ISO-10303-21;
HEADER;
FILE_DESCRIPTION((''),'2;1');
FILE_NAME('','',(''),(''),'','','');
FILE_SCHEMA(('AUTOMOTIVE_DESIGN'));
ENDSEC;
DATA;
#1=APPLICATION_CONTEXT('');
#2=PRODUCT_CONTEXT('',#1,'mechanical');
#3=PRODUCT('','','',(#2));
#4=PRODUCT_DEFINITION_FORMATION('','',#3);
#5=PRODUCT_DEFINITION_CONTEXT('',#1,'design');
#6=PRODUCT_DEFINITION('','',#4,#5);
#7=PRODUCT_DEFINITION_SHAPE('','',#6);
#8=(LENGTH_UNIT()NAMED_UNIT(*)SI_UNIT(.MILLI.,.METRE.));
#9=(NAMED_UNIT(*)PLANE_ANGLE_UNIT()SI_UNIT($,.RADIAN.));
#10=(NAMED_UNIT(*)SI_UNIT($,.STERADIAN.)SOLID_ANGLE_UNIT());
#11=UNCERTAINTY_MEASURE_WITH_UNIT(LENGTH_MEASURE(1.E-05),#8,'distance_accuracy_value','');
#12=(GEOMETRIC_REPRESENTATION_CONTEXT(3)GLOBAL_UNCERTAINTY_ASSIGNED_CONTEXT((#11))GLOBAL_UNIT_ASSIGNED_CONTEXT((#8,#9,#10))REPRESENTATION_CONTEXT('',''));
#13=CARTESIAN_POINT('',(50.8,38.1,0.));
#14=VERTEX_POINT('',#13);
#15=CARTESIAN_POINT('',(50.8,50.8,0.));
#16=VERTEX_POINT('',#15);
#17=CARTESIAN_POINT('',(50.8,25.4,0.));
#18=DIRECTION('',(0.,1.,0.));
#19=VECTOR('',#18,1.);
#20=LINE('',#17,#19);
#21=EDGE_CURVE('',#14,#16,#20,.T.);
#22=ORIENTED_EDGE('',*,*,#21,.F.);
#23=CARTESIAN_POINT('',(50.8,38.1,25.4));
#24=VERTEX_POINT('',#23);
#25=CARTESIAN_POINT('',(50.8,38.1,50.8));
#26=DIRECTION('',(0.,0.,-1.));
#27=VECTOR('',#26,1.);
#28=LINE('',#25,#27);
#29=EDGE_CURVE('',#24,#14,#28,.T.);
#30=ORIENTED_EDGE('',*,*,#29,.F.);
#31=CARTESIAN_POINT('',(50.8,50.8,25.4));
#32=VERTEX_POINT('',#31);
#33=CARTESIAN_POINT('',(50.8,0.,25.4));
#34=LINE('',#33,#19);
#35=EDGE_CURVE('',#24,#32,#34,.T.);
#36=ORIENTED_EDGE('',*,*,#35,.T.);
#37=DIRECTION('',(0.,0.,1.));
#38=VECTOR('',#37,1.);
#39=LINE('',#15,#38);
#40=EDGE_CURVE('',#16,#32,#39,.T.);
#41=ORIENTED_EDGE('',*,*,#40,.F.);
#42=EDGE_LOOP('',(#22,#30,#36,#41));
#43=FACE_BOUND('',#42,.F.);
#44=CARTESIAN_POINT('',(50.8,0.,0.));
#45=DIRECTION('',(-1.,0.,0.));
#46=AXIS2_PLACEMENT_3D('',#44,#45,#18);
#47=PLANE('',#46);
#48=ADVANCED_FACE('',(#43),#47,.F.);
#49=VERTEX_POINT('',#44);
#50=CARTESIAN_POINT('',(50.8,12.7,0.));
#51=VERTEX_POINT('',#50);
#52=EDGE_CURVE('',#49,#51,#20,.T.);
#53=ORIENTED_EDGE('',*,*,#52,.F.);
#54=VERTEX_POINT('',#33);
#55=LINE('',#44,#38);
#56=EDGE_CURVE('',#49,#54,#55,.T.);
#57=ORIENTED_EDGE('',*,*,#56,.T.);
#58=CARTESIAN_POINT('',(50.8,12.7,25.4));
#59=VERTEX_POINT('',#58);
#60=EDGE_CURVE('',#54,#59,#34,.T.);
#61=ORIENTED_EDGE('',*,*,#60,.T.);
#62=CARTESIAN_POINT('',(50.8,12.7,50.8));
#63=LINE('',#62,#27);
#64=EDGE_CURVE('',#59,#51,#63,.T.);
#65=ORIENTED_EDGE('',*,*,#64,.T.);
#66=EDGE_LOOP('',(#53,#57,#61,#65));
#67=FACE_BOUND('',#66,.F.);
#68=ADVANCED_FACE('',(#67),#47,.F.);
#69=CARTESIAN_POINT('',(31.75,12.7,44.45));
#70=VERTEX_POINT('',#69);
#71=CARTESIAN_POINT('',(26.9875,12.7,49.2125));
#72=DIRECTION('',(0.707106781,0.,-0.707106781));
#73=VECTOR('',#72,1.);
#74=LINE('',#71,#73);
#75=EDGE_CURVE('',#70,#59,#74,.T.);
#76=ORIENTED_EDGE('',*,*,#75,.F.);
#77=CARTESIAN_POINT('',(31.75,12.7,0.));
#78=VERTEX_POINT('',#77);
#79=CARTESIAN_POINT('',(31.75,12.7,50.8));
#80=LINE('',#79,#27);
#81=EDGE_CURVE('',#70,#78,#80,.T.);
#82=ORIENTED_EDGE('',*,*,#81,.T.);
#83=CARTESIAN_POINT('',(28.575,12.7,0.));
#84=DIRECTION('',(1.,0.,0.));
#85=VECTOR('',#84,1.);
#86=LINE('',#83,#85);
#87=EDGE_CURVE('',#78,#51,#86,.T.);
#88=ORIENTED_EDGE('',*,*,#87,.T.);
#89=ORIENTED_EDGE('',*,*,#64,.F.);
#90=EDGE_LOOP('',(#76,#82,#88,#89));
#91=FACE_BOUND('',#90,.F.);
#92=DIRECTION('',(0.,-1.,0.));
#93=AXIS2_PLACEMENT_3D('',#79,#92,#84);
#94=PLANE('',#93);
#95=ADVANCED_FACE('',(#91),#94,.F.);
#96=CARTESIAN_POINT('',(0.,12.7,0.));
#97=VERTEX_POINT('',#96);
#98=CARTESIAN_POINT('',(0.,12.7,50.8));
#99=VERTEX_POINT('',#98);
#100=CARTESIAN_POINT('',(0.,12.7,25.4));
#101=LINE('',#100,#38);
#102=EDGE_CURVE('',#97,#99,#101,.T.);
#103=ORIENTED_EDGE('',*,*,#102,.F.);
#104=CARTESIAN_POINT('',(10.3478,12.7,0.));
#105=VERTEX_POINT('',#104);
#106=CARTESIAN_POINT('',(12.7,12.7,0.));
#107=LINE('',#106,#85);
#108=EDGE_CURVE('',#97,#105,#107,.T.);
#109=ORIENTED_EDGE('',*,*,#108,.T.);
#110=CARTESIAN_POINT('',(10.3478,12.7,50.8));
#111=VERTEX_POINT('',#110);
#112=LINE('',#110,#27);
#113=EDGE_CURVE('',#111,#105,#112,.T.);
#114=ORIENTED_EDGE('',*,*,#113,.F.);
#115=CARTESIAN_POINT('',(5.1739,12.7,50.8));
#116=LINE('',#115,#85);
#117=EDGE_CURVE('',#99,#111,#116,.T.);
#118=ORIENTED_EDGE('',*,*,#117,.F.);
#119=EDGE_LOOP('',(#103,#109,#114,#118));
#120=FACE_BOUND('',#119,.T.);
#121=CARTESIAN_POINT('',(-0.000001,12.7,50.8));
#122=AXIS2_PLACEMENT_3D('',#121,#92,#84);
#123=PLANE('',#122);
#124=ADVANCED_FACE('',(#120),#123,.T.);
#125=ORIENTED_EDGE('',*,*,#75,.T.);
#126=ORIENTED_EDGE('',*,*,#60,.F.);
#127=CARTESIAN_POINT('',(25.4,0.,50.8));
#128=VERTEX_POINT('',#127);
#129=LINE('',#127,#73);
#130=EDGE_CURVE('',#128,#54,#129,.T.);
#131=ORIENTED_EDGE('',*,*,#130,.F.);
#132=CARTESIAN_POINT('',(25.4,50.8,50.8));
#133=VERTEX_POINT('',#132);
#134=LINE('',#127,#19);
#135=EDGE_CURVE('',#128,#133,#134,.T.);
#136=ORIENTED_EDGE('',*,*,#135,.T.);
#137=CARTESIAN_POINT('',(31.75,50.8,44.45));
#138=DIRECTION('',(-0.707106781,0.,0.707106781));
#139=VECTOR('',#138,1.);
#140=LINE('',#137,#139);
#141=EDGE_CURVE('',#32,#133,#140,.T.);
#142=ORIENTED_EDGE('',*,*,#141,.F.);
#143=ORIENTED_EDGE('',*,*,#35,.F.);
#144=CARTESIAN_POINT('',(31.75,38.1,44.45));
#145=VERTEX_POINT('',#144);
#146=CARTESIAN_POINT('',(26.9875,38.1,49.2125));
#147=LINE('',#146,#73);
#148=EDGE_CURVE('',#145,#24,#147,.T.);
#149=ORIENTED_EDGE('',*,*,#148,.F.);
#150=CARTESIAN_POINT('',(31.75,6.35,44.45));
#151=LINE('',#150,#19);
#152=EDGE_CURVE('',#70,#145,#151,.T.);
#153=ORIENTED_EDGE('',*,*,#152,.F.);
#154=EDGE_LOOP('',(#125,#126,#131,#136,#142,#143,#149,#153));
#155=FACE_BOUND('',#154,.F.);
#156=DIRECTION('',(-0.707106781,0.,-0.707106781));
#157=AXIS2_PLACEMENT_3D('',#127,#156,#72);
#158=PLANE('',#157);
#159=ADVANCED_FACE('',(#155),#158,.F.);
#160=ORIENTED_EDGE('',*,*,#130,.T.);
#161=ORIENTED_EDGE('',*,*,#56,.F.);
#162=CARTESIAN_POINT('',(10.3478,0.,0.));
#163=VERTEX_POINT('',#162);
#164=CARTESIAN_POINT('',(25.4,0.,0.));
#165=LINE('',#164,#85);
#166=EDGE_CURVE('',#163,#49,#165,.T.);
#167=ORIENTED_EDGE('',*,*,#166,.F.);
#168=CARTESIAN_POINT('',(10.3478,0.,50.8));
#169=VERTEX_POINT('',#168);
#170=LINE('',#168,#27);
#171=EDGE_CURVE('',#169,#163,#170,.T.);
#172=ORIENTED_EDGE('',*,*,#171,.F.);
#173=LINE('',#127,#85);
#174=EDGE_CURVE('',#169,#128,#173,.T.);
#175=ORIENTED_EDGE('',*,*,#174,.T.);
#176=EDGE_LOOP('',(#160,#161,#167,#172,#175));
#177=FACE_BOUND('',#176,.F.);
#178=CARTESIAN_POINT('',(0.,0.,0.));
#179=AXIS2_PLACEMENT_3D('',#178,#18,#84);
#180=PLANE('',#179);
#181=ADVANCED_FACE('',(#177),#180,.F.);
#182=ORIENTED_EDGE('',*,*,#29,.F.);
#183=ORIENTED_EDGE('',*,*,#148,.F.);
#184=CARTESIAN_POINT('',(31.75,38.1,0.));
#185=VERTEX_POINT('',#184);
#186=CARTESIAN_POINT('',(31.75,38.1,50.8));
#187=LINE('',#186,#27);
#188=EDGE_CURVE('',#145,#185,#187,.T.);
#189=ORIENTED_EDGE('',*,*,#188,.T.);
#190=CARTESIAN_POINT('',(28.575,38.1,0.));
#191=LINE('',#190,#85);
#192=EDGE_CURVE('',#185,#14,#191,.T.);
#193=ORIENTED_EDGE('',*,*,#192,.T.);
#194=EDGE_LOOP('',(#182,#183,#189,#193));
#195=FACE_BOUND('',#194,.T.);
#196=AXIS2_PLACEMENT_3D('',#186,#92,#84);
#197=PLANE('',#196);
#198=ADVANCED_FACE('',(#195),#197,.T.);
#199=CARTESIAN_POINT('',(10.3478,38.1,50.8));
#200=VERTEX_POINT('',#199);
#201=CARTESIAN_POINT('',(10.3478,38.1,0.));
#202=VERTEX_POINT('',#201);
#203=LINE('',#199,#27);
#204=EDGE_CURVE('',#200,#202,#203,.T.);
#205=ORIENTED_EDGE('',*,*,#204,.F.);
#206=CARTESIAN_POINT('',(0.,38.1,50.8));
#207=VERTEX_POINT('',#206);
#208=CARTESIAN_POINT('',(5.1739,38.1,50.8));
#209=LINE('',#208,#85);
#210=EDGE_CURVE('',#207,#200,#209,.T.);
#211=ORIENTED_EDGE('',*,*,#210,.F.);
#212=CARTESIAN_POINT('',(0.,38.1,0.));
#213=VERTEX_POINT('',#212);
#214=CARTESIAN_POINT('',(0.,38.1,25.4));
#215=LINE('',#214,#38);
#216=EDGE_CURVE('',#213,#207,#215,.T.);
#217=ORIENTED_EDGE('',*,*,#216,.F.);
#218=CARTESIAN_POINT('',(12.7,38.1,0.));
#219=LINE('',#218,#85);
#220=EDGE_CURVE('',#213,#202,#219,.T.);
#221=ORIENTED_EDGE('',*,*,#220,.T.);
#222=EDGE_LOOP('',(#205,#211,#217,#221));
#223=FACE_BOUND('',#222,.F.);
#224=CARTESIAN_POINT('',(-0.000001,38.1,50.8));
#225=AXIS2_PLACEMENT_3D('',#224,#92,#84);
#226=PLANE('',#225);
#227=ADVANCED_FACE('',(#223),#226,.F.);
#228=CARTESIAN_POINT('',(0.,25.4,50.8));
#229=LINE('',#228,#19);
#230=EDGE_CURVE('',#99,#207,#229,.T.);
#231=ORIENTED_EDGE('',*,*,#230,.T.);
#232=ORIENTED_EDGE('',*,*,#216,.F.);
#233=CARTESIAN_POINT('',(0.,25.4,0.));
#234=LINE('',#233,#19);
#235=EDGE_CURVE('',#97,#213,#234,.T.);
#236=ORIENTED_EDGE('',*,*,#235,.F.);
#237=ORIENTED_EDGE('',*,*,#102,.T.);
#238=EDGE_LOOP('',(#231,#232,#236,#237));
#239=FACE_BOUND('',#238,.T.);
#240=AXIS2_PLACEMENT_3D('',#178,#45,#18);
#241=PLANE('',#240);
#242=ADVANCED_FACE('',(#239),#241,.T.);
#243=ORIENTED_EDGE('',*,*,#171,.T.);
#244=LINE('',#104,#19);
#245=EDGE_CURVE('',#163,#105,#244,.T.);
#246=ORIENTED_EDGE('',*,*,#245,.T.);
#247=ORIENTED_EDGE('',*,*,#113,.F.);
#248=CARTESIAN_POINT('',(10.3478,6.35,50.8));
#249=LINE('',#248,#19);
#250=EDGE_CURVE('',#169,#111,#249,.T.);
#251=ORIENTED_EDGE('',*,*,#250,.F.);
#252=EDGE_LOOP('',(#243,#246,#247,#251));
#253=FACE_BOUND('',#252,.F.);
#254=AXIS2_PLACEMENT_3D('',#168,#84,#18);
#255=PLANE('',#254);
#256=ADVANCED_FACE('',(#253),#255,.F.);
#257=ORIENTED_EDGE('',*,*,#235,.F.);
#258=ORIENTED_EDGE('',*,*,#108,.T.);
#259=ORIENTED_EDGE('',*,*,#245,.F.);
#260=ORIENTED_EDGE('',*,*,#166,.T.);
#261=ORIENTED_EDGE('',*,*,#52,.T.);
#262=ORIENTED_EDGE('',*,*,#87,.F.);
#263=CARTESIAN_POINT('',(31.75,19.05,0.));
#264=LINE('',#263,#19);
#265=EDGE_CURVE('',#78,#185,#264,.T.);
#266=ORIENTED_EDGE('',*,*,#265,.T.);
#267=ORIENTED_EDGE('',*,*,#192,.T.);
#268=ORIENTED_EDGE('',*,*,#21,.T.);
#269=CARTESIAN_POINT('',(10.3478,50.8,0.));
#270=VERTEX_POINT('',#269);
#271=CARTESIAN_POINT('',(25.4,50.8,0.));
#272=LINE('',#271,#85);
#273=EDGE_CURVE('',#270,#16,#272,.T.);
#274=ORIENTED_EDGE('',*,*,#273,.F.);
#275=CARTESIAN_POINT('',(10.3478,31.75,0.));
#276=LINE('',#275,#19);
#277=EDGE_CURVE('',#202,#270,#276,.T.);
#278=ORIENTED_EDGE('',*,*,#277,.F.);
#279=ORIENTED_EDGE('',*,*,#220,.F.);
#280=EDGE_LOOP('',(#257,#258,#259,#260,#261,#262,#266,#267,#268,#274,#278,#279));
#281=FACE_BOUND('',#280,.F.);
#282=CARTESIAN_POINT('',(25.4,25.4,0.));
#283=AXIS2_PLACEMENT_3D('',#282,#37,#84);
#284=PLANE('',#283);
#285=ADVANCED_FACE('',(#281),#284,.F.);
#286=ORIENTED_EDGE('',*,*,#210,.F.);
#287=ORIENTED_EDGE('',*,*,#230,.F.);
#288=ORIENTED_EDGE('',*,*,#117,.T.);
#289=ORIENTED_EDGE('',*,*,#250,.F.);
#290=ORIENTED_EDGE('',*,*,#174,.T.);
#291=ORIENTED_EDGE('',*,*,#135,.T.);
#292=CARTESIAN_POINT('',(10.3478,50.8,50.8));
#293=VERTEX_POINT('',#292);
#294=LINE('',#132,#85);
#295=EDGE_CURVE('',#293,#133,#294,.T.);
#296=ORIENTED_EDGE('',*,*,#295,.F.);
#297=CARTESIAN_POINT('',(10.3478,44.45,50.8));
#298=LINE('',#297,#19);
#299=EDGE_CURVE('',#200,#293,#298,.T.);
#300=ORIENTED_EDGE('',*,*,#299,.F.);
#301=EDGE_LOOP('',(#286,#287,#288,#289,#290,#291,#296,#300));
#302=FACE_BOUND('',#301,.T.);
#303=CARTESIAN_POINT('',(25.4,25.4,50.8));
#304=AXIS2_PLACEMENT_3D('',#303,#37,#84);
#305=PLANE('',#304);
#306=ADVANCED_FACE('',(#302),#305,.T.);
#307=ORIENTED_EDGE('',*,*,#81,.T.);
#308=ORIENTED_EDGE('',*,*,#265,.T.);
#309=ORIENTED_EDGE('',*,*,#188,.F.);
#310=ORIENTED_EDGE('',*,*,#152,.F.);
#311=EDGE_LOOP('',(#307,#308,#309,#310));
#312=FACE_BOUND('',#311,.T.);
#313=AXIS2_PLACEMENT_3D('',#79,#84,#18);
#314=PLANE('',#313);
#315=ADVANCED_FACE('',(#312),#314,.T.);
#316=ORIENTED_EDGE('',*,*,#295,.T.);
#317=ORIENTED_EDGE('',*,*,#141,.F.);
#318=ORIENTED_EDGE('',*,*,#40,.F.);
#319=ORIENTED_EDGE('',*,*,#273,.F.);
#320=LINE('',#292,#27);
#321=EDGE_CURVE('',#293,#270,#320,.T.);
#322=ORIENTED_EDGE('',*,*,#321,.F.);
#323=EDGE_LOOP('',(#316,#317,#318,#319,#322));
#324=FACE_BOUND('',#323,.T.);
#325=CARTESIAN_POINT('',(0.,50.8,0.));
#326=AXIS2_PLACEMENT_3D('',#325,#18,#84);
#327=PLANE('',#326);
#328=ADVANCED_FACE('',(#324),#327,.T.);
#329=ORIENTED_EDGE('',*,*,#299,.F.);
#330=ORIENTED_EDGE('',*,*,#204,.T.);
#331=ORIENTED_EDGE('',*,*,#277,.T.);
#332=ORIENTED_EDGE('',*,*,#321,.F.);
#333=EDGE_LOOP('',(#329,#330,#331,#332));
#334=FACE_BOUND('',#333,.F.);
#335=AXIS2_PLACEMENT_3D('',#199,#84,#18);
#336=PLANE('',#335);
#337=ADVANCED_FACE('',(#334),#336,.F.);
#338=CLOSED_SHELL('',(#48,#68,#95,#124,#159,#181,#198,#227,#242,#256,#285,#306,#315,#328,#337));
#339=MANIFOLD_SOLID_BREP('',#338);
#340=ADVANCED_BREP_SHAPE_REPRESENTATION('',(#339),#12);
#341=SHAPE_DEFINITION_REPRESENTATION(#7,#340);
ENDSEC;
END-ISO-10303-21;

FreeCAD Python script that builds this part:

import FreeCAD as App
import Part
import Sketcher
from FreeCAD import Vector
Q = App.Units.Quantity

doc = App.newDocument("Part")
body = doc.addObject("PartDesign::Body", "Body")

sketch1 = doc.addObject("Sketcher::SketchObject", "Sketch")
body.addObject(sketch1)
sketch1.AttachmentSupport = (doc.XY_Plane, [""])
sketch1.MapMode = "FlatFace"
sketch1.addGeometry(Part.LineSegment(Vector(0, 50.8, 0), Vector(0, 0, 0)), False)
sketch1.addGeometry(Part.LineSegment(Vector(0, 0, 0), Vector(50.8, 0, 0)), False)
sketch1.addGeometry(Part.LineSegment(Vector(50.8, 0, 0), Vector(50.8, 50.8, 0)), False)
sketch1.addGeometry(Part.LineSegment(Vector(50.8, 50.8, 0), Vector(0, 50.8, 0)), False)
sketch1.addConstraint(Sketcher.Constraint("Coincident", 0, 2, 1, 1))
sketch1.addConstraint(Sketcher.Constraint("Coincident", 1, 2, 2, 1))
sketch1.addConstraint(Sketcher.Constraint("Coincident", 2, 2, 3, 1))
sketch1.addConstraint(Sketcher.Constraint("Coincident", 3, 2, 0, 1))
sketch1.addConstraint(Sketcher.Constraint("Vertical", 0))
sketch1.addConstraint(Sketcher.Constraint("Horizontal", 1))
sketch1.addConstraint(Sketcher.Constraint("Vertical", 2))
sketch1.addConstraint(Sketcher.Constraint("Horizontal", 3))
sketch1.addConstraint(Sketcher.Constraint("Coincident", 0, 2, -1, 1))
sketch1.addConstraint(Sketcher.Constraint("Equal", 3, 0))
sketch1.addConstraint(Sketcher.Constraint("DistanceX", 1, 1, 1, 2, Q("2 in")))
pad1 = doc.addObject("PartDesign::Pad", "Pad")
body.addObject(pad1)
pad1.Profile = sketch1
pad1.Length = Q("2 in")

sketch2 = doc.addObject("Sketcher::SketchObject", "Sketch001")
body.addObject(sketch2)
sketch2.AttachmentSupport = (doc.XY_Plane, [""])
sketch2.MapMode = "FlatFace"
sketch2.AttachmentOffset = App.Placement(Vector(0, 0, 2 * 25.4), App.Rotation())
sketch2.addGeometry(Part.LineSegment(Vector(31.75, 38.1, 0), Vector(31.75, 12.7, 0)), False)
sketch2.addGeometry(Part.LineSegment(Vector(31.75, 12.7, 0), Vector(50.8, 12.7, 0)), False)
sketch2.addGeometry(Part.LineSegment(Vector(50.8, 12.7, 0), Vector(50.8, 38.1, 0)), False)
sketch2.addGeometry(Part.LineSegment(Vector(50.8, 38.1, 0), Vector(31.75, 38.1, 0)), False)
sketch2.addConstraint(Sketcher.Constraint("Coincident", 0, 2, 1, 1))
sketch2.addConstraint(Sketcher.Constraint("Coincident", 1, 2, 2, 1))
sketch2.addConstraint(Sketcher.Constraint("Coincident", 2, 2, 3, 1))
sketch2.addConstraint(Sketcher.Constraint("Coincident", 3, 2, 0, 1))
sketch2.addConstraint(Sketcher.Constraint("Vertical", 0))
sketch2.addConstraint(Sketcher.Constraint("Horizontal", 1))
sketch2.addConstraint(Sketcher.Constraint("Vertical", 2))
sketch2.addConstraint(Sketcher.Constraint("Horizontal", 3))
sketch2.addConstraint(Sketcher.Constraint("DistanceY", 0, 2, 0, 1, Q("1 in")))
sketch2.addConstraint(Sketcher.Constraint("DistanceX", -1, 1, 1, 2, Q("2 in")))
sketch2.addConstraint(Sketcher.Constraint("DistanceX", 1, 1, 1, 2, Q("0.75 in")))
sketch2.addConstraint(Sketcher.Constraint("DistanceY", -1, 1, 0, 2, Q("0.5 in")))
pocket1 = doc.addObject("PartDesign::Pocket", "Pocket")
body.addObject(pocket1)
pocket1.Profile = sketch2
pocket1.Type = "ThroughAll"

sketch3 = doc.addObject("Sketcher::SketchObject", "Sketch002")
body.addObject(sketch3)
sketch3.AttachmentSupport = (doc.XZ_Plane, [""])
sketch3.MapMode = "FlatFace"
sketch3.addGeometry(Part.LineSegment(Vector(25.4, 50.8, 0), Vector(50.8, 25.4, 0)), False)
sketch3.addGeometry(Part.LineSegment(Vector(50.8, 25.4, 0), Vector(50.8, 50.8, 0)), False)
sketch3.addGeometry(Part.LineSegment(Vector(50.8, 50.8, 0), Vector(25.4, 50.8, 0)), False)
sketch3.addConstraint(Sketcher.Constraint("Coincident", 0, 2, 1, 1))
sketch3.addConstraint(Sketcher.Constraint("Coincident", 1, 2, 2, 1))
sketch3.addConstraint(Sketcher.Constraint("Coincident", 2, 2, 0, 1))
sketch3.addConstraint(Sketcher.Constraint("Vertical", 1))
sketch3.addConstraint(Sketcher.Constraint("Horizontal", 2))
sketch3.addConstraint(Sketcher.Constraint("Equal", 2, 1))
sketch3.addConstraint(Sketcher.Constraint("DistanceX", 2, 2, 2, 1, Q("1 in")))
sketch3.addConstraint(Sketcher.Constraint("DistanceX", -1, 1, 0, 2, Q("2 in")))
sketch3.addConstraint(Sketcher.Constraint("DistanceY", -1, 1, 0, 2, Q("1 in")))
pocket2 = doc.addObject("PartDesign::Pocket", "Pocket001")
body.addObject(pocket2)
pocket2.Profile = sketch3
pocket2.Type = "ThroughAll"

sketch4 = doc.addObject("Sketcher::SketchObject", "Sketch003")
body.addObject(sketch4)
sketch4.AttachmentSupport = (doc.XY_Plane, [""])
sketch4.MapMode = "FlatFace"
sketch4.AttachmentOffset = App.Placement(Vector(0, 0, 2 * 25.4), App.Rotation())
sketch4.addGeometry(Part.LineSegment(Vector(0, 12.7, 0), Vector(0, 0, 0)), False)
sketch4.addGeometry(Part.LineSegment(Vector(0, 0, 0), Vector(10.3478, 0, 0)), False)
sketch4.addGeometry(Part.LineSegment(Vector(10.3478, 0, 0), Vector(10.3478, 12.7, 0)), False)
sketch4.addGeometry(Part.LineSegment(Vector(10.3478, 12.7, 0), Vector(0, 12.7, 0)), False)
sketch4.addGeometry(Part.LineSegment(Vector(0, 50.8, 0), Vector(0, 38.1, 0)), False)
sketch4.addGeometry(Part.LineSegment(Vector(0, 38.1, 0), Vector(10.3478, 38.1, 0)), False)
sketch4.addGeometry(Part.LineSegment(Vector(10.3478, 38.1, 0), Vector(10.3478, 50.8, 0)), False)
sketch4.addGeometry(Part.LineSegment(Vector(10.3478, 50.8, 0), Vector(0, 50.8, 0)), False)
sketch4.addConstraint(Sketcher.Constraint("Coincident", 0, 2, 1, 1))
sketch4.addConstraint(Sketcher.Constraint("Coincident", 1, 2, 2, 1))
sketch4.addConstraint(Sketcher.Constraint("Coincident", 2, 2, 3, 1))
sketch4.addConstraint(Sketcher.Constraint("Coincident", 3, 2, 0, 1))
sketch4.addConstraint(Sketcher.Constraint("Coincident", 4, 2, 5, 1))
sketch4.addConstraint(Sketcher.Constraint("Coincident", 5, 2, 6, 1))
sketch4.addConstraint(Sketcher.Constraint("Coincident", 6, 2, 7, 1))
sketch4.addConstraint(Sketcher.Constraint("Coincident", 7, 2, 4, 1))
sketch4.addConstraint(Sketcher.Constraint("Vertical", 0))
sketch4.addConstraint(Sketcher.Constraint("Horizontal", 1))
sketch4.addConstraint(Sketcher.Constraint("Vertical", 2))
sketch4.addConstraint(Sketcher.Constraint("Horizontal", 3))
sketch4.addConstraint(Sketcher.Constraint("Vertical", 4))
sketch4.addConstraint(Sketcher.Constraint("Horizontal", 5))
sketch4.addConstraint(Sketcher.Constraint("Vertical", 6))
sketch4.addConstraint(Sketcher.Constraint("Horizontal", 7))
sketch4.addConstraint(Sketcher.Constraint("Coincident", 0, 2, -1, 1))
sketch4.addConstraint(Sketcher.Constraint("PointOnObject", 4, 2, -2))
sketch4.addConstraint(Sketcher.Constraint("Vertical", 2, 2, 5, 2))
sketch4.addConstraint(Sketcher.Constraint("Equal", 2, 4))
sketch4.addConstraint(Sketcher.Constraint("DistanceY", 0, 2, 0, 1, Q("0.5 in")))
sketch4.addConstraint(Sketcher.Constraint("DistanceY", -1, 1, 6, 2, Q("2 in")))
sketch4.addConstraint(Sketcher.Constraint("DistanceX", 1, 1, 1, 2, 10.347801))
pocket3 = doc.addObject("PartDesign::Pocket", "Pocket002")
body.addObject(pocket3)
pocket3.Profile = sketch4
pocket3.Type = "ThroughAll"

doc.recompute()
